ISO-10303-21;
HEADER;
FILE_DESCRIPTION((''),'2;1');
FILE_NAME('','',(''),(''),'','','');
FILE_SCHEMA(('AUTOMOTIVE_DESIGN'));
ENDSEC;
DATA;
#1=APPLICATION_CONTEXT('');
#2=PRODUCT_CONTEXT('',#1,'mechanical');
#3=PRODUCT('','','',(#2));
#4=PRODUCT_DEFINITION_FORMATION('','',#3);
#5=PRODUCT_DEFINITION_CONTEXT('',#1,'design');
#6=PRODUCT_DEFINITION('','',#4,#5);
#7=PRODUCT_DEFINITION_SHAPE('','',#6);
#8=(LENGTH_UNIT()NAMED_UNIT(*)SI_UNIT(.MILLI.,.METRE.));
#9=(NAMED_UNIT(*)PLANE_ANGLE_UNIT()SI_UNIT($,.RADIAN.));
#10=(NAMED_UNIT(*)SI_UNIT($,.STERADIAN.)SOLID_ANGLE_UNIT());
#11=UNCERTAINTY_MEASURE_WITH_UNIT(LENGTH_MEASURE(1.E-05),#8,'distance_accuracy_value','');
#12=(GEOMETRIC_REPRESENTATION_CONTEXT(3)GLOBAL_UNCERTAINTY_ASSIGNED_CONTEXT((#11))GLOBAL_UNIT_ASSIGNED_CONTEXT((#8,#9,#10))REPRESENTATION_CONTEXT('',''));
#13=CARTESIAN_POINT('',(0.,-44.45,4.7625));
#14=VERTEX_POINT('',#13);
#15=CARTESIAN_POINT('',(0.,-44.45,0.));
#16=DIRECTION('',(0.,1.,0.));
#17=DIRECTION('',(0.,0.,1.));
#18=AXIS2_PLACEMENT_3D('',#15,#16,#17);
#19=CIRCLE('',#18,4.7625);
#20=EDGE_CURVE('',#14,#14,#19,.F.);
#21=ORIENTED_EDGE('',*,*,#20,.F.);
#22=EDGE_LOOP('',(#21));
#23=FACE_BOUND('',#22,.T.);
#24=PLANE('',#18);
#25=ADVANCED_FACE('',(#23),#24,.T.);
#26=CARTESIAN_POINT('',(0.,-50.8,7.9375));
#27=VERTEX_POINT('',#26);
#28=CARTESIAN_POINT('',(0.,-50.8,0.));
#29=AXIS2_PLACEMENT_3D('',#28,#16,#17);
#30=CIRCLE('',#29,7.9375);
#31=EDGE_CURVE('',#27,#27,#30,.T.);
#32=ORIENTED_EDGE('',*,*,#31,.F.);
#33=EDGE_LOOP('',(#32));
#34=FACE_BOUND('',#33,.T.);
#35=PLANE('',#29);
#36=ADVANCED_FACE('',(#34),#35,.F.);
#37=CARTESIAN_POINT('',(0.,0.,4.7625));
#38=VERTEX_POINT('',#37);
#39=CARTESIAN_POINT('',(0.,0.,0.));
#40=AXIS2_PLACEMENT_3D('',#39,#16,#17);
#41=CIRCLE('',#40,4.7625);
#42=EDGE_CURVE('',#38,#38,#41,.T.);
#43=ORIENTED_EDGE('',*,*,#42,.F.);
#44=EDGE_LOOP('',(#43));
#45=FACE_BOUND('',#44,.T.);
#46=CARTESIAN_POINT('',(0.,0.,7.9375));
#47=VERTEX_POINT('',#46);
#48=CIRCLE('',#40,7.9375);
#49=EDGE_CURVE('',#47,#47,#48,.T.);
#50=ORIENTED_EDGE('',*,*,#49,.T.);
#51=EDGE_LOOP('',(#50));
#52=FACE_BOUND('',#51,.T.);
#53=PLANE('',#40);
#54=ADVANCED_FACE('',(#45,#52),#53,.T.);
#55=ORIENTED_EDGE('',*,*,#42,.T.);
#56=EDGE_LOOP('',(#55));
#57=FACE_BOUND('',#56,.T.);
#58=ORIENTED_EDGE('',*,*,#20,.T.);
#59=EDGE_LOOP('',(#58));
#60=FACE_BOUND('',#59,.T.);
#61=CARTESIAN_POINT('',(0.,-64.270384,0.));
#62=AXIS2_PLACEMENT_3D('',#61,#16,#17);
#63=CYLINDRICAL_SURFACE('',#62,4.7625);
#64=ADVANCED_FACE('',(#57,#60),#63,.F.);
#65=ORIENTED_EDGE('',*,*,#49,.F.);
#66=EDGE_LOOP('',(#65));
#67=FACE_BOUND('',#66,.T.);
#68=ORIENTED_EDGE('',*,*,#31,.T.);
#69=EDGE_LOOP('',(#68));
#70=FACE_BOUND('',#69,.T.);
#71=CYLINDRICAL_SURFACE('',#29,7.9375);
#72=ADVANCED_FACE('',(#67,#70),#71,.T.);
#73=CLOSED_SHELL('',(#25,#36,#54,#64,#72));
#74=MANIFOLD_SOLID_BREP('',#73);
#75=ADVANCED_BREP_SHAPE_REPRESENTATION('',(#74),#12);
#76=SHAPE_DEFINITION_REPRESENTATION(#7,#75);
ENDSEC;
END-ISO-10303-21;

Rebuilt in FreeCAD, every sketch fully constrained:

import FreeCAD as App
import Part
import Sketcher

V = App.Vector
Q = App.Units.Quantity

doc = App.newDocument("Part")
body = doc.addObject("PartDesign::Body", "Body")

# Sketch on XZ plane
sketch1 = doc.addObject("Sketcher::SketchObject", "Sketch")
body.addObject(sketch1)
sketch1.AttachmentSupport = (doc.XZ_Plane, [""])
sketch1.MapMode = "FlatFace"
sketch1.addGeometry(Part.Circle(V(0, 0, 0), V(0, 0, 1), 7.9375), False)
sketch1.addConstraint([
    Sketcher.Constraint("Coincident", 0, 3, -1, 1),
    Sketcher.Constraint("Diameter", 0, Q("0.625 in")),
])
pad1 = doc.addObject("PartDesign::Pad", "Pad")
body.addObject(pad1)
pad1.Profile = sketch1
pad1.Length = Q("2 in")

# Sketch on XZ plane
sketch2 = doc.addObject("Sketcher::SketchObject", "Sketch001")
body.addObject(sketch2)
sketch2.AttachmentSupport = (doc.XZ_Plane, [""])
sketch2.MapMode = "FlatFace"
sketch2.addGeometry(Part.Circle(V(0, 0, 0), V(0, 0, 1), 4.7625), False)
sketch2.addConstraint([
    Sketcher.Constraint("Coincident", 0, 3, -1, 1),
    Sketcher.Constraint("Diameter", 0, Q("0.375 in")),
])
pocket1 = doc.addObject("PartDesign::Pocket", "Pocket")
body.addObject(pocket1)
pocket1.Profile = sketch2
pocket1.Length = Q("1.75 in")
pocket1.Reversed = True

doc.recompute()
